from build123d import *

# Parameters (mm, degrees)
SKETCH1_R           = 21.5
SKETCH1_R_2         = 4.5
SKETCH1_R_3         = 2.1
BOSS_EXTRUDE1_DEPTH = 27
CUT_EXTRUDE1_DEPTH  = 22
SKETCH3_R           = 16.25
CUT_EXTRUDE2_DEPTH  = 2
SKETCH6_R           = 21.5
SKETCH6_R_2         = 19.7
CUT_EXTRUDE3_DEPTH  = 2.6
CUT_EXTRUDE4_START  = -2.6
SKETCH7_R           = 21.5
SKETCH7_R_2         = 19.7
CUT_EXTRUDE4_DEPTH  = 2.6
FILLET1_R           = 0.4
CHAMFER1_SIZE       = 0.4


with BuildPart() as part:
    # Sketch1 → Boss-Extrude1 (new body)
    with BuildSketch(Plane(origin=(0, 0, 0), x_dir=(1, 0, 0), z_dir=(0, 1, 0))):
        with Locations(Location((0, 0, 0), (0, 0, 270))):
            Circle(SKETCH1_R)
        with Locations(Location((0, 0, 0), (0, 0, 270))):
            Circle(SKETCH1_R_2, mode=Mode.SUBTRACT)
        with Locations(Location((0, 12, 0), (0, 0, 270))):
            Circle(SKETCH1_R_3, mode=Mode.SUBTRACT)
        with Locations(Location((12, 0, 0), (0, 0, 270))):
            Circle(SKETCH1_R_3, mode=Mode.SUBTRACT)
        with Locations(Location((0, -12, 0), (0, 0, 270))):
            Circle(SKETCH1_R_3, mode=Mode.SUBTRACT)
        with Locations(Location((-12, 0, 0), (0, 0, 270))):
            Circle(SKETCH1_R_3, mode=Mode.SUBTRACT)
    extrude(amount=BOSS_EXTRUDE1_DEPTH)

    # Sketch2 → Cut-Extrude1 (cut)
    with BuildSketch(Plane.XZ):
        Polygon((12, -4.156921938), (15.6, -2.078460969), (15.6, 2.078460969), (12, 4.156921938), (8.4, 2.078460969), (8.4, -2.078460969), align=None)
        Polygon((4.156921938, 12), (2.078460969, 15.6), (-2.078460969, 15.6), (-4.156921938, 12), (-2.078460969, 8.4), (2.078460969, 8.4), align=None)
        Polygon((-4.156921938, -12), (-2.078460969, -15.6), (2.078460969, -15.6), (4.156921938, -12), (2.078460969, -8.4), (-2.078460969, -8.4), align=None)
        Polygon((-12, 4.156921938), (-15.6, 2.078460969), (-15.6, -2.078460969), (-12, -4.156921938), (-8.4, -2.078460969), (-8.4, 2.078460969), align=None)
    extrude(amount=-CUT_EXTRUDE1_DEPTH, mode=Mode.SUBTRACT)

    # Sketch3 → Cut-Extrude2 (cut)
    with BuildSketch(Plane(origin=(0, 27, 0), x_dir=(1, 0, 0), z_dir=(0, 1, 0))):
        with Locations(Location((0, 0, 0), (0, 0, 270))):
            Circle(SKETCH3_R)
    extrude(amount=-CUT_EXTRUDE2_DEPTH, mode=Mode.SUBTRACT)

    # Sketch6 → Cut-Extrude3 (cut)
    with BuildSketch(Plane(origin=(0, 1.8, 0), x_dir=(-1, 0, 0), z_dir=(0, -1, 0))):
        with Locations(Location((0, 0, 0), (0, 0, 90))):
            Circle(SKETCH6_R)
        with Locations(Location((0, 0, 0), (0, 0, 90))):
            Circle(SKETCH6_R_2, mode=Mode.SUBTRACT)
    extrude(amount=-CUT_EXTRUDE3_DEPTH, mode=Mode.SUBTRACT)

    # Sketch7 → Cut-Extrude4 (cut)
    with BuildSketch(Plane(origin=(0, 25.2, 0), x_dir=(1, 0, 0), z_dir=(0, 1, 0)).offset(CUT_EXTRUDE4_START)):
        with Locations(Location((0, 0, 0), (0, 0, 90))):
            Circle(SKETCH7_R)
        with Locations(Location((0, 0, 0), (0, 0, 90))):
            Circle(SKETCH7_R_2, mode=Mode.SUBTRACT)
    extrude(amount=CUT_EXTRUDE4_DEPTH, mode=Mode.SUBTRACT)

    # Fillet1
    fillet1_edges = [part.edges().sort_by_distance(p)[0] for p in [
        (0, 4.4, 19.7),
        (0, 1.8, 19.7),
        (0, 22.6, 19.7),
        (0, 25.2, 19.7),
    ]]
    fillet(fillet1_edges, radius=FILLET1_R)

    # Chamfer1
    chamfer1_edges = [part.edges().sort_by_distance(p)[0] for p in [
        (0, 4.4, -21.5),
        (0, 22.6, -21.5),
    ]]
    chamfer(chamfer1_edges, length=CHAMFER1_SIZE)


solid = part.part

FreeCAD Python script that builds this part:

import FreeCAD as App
import Part
import Sketcher
Q = App.Units.Quantity


def edges_at(feature, points):
    """Names of the edges that pass closest to the given points."""
    edges = feature.Shape.Edges
    near = lambda p: min(range(len(edges)), key=lambda i: edges[i].distToShape(Part.Vertex(*p))[0])
    return sorted({f"Edge{near(p) + 1}" for p in points})


def add_polygon(sketch, points):
    """Adds a closed chain of lines whose ends are joined by coincident constraints."""
    first, n = sketch.GeometryCount, len(points)
    for a, b in zip(points, points[1:] + points[:1]):
        sketch.addGeometry(Part.LineSegment(App.Vector(*a, 0), App.Vector(*b, 0)), False)
    for i in range(n):
        sketch.addConstraint(Sketcher.Constraint("Coincident", first + i, 2, first + (i + 1) % n, 1))

doc = App.newDocument("Part")
params = doc.addObject("Spreadsheet::Sheet", "Params")
for row, (alias, value) in enumerate([
    ("sketch1_diameter", "43 mm"),
    ("sketch1_diameter2", "9 mm"),
    ("sketch1_diameter3", "4.2 mm"),
    ("pad1_length", "27 mm"),
    ("pocket1_length", "22 mm"),
    ("sketch3_diameter", "32.5 mm"),
    ("pocket2_length", "2 mm"),
    ("sketch4_diameter", "43 mm"),
    ("sketch4_diameter2", "39.4 mm"),
    ("pocket3_length", "2.6 mm"),
    ("sketch5_diameter", "43 mm"),
    ("sketch5_diameter2", "39.4 mm"),
    ("pocket4_length", "2.6 mm"),
    ("fillet_radius", "0.4 mm"),
    ("chamfer_size", "0.4 mm"),
], start=1):
    params.set(f"A{row}", alias)
    params.set(f"B{row}", "=" + value)
    params.setAlias(f"B{row}", alias)

body = doc.addObject("PartDesign::Body", "Body")

# Sketch on XZ plane
sketch1 = body.newObject("Sketcher::SketchObject", "Sketch")
sketch1.AttachmentSupport = (doc.getObject("XZ_Plane"), [""])
sketch1.MapMode = "FlatFace"
sketch1.addGeometry(Part.Circle(App.Vector(0, 0, 0), App.Vector(0, 0, 1), 21.5), False)
sketch1.addGeometry(Part.Circle(App.Vector(0, -12, 0), App.Vector(0, 0, 1), 2.1), False)
sketch1.addGeometry(Part.Circle(App.Vector(-12, 0, 0), App.Vector(0, 0, 1), 2.1), False)
sketch1.addGeometry(Part.Circle(App.Vector(12, 0, 0), App.Vector(0, 0, 1), 2.1), False)
sketch1.addGeometry(Part.Circle(App.Vector(0, 0, 0), App.Vector(0, 0, 1), 4.5), False)
sketch1.addGeometry(Part.Circle(App.Vector(0, 12, 0), App.Vector(0, 0, 1), 2.1), False)
sketch1.addConstraint(Sketcher.Constraint("Coincident", 0, 3, -1, 1))
sketch1.addConstraint(Sketcher.Constraint("Coincident", 4, 3, -1, 1))
sketch1.addConstraint(Sketcher.Constraint("Equal", 1, 2))
sketch1.addConstraint(Sketcher.Constraint("Equal", 2, 3))
sketch1.addConstraint(Sketcher.Constraint("Equal", 3, 5))
sketch1.addConstraint(Sketcher.Constraint("Symmetric", 2, 3, 3, 3, -1, 1))
sketch1.addConstraint(Sketcher.Constraint("Symmetric", 1, 3, 5, 3, -1, 1))
sketch1.addConstraint(Sketcher.Constraint("PointOnObject", 1, 3, -2))
sketch1.addConstraint(Sketcher.Constraint("PointOnObject", 2, 3, -1))
sketch1.addConstraint(Sketcher.Constraint("Diameter", 0, 43.0))
sketch1.addConstraint(Sketcher.Constraint("Diameter", 4, 9.0))
sketch1.addConstraint(Sketcher.Constraint("Diameter", 1, 4.2))
sketch1.addConstraint(Sketcher.Constraint("DistanceY", 1, 3, -1, 1, 12.0))
sketch1.addConstraint(Sketcher.Constraint("DistanceX", 2, 3, -1, 1, 12.0))
sketch1.setExpression("Constraints[9]", "Params.sketch1_diameter")
sketch1.setExpression("Constraints[10]", "Params.sketch1_diameter2")
sketch1.setExpression("Constraints[11]", "Params.sketch1_diameter3")
pad1 = body.newObject("PartDesign::Pad", "Pad")
pad1.Profile = sketch1
pad1.setExpression("Length", "Params.pad1_length")
pad1.Reversed = True

# Sketch on XZ plane
sketch2 = body.newObject("Sketcher::SketchObject", "Sketch001")
sketch2.AttachmentSupport = (doc.getObject("XZ_Plane"), [""])
sketch2.MapMode = "FlatFace"
add_polygon(sketch2, [(12, -4.2), (15.6, -2.1), (15.6, 2.1), (12, 4.2), (8.4, 2.1), (8.4, -2.1)])  # lines 0-5
add_polygon(sketch2, [(4.2, 12), (2.1, 15.6), (-2.1, 15.6), (-4.2, 12), (-2.1, 8.4), (2.1, 8.4)])  # lines 6-11
add_polygon(sketch2, [(-4.2, -12), (-2.1, -15.6), (2.1, -15.6), (4.2, -12), (2.1, -8.4), (-2.1, -8.4)])  # lines 12-17
add_polygon(sketch2, [(-12, 4.2), (-15.6, 2.1), (-15.6, -2.1), (-12, -4.2), (-8.4, -2.1), (-8.4, 2.1)])  # lines 18-23
sketch2.addConstraint(Sketcher.Constraint("Vertical", 1))
sketch2.addConstraint(Sketcher.Constraint("Vertical", 4))
sketch2.addConstraint(Sketcher.Constraint("Horizontal", 7))
sketch2.addConstraint(Sketcher.Constraint("Horizontal", 10))
sketch2.addConstraint(Sketcher.Constraint("Horizontal", 13))
sketch2.addConstraint(Sketcher.Constraint("Horizontal", 16))
sketch2.addConstraint(Sketcher.Constraint("Vertical", 19))
sketch2.addConstraint(Sketcher.Constraint("Vertical", 22))
sketch2.addConstraint(Sketcher.Constraint("Symmetric", 6, 2, 12, 2, -1, 1))
sketch2.addConstraint(Sketcher.Constraint("Symmetric", 8, 2, 14, 2, -1, 1))
sketch2.addConstraint(Sketcher.Constraint("Symmetric", 9, 2, 15, 2, -1, 1))
sketch2.addConstraint(Sketcher.Constraint("Symmetric", 11, 2, 17, 2, -1, 1))
sketch2.addConstraint(Sketcher.Constraint("Symmetric", 0, 2, 18, 2, -1, 1))
sketch2.addConstraint(Sketcher.Constraint("Symmetric", 2, 2, 20, 2, -1, 1))
sketch2.addConstraint(Sketcher.Constraint("Symmetric", 3, 2, 21, 2, -1, 1))
sketch2.addConstraint(Sketcher.Constraint("Symmetric", 5, 2, 23, 2, -1, 1))
sketch2.addConstraint(Sketcher.Constraint("Symmetric", 8, 2, 11, 2, -2))
sketch2.addConstraint(Sketcher.Constraint("Symmetric", 5, 2, 20, 2, -2))
sketch2.addConstraint(Sketcher.Constraint("Parallel", 0, 3))
sketch2.addConstraint(Sketcher.Constraint("Parallel", 2, 5))
sketch2.addConstraint(Sketcher.Constraint("Perpendicular", 3, 6))
sketch2.addConstraint(Sketcher.Constraint("Perpendicular", 5, 8))
sketch2.addConstraint(Sketcher.Constraint("Parallel", 6, 9))
sketch2.addConstraint(Sketcher.Constraint("Parallel", 8, 11))
sketch2.addConstraint(Sketcher.Constraint("Parallel", 11, 14))
sketch2.addConstraint(Sketcher.Constraint("Parallel", 14, 17))
sketch2.addConstraint(Sketcher.Constraint("Perpendicular", 17, 20))
sketch2.addConstraint(Sketcher.Constraint("Parallel", 20, 23))
sketch2.addConstraint(Sketcher.Constraint("Horizontal", 1, 2, 3, 2))
sketch2.addConstraint(Sketcher.Constraint("Horizontal", 0, 2, 4, 2))
sketch2.addConstraint(Sketcher.Constraint("Vertical", 7, 2, 9, 2))
sketch2.addConstraint(Sketcher.Constraint("Equal", 16, 1))
sketch2.addConstraint(Sketcher.Constraint("Equal", 5, 6))
sketch2.addConstraint(Sketcher.Constraint("Angle", 0, Q("30 deg")))
sketch2.addConstraint(Sketcher.Constraint("DistanceX", -1, 1, 2, 2, 12.0))
sketch2.addConstraint(Sketcher.Constraint("DistanceY", -1, 1, 8, 2, 12.0))
sketch2.addConstraint(Sketcher.Constraint("DistanceX", -1, 1, 0, 2, 15.6))
sketch2.addConstraint(Sketcher.Constraint("DistanceX", 7, 2, 7, 1, 4.156922))
pocket1 = body.newObject("PartDesign::Pocket", "Pocket")
pocket1.Profile = sketch2
pocket1.setExpression("Length", "Params.pocket1_length")

# Sketch on XZ plane
sketch3 = body.newObject("Sketcher::SketchObject", "Sketch002")
sketch3.AttachmentSupport = (doc.getObject("XZ_Plane"), [""])
sketch3.MapMode = "FlatFace"
sketch3.AttachmentOffset = App.Placement(App.Vector(0, 0, -27), App.Rotation())
sketch3.addGeometry(Part.Circle(App.Vector(0, 0, 0), App.Vector(0, 0, 1), 16), False)
sketch3.addConstraint(Sketcher.Constraint("Coincident", 0, 3, -1, 1))
sketch3.addConstraint(Sketcher.Constraint("Diameter", 0, 32.5))
sketch3.setExpression("Constraints[1]", "Params.sketch3_diameter")
pocket2 = body.newObject("PartDesign::Pocket", "Pocket001")
pocket2.Profile = sketch3
pocket2.setExpression("Length", "Params.pocket2_length")
pocket2.Reversed = True

# Sketch on XZ plane
sketch4 = body.newObject("Sketcher::SketchObject", "Sketch003")
sketch4.AttachmentSupport = (doc.getObject("XZ_Plane"), [""])
sketch4.MapMode = "FlatFace"
sketch4.AttachmentOffset = App.Placement(App.Vector(0, 0, -1.8), App.Rotation())
sketch4.addGeometry(Part.Circle(App.Vector(0, 0, 0), App.Vector(0, 0, 1), 22), False)
sketch4.addGeometry(Part.Circle(App.Vector(0, 0, 0), App.Vector(0, 0, 1), 20), False)
sketch4.addConstraint(Sketcher.Constraint("Coincident", 0, 3, -1, 1))
sketch4.addConstraint(Sketcher.Constraint("Coincident", 1, 3, -1, 1))
sketch4.addConstraint(Sketcher.Constraint("Diameter", 0, 43.0))
sketch4.addConstraint(Sketcher.Constraint("Diameter", 1, 39.4))
sketch4.setExpression("Constraints[2]", "Params.sketch4_diameter")
sketch4.setExpression("Constraints[3]", "Params.sketch4_diameter2")
pocket3 = body.newObject("PartDesign::Pocket", "Pocket002")
pocket3.Profile = sketch4
pocket3.setExpression("Length", "Params.pocket3_length")

# Sketch on XZ plane
sketch5 = body.newObject("Sketcher::SketchObject", "Sketch004")
sketch5.AttachmentSupport = (doc.getObject("XZ_Plane"), [""])
sketch5.MapMode = "FlatFace"
sketch5.AttachmentOffset = App.Placement(App.Vector(0, 0, -22.6), App.Rotation())
sketch5.addGeometry(Part.Circle(App.Vector(0, 0, 0), App.Vector(0, 0, 1), 22), False)
sketch5.addGeometry(Part.Circle(App.Vector(0, 0, 0), App.Vector(0, 0, 1), 20), False)
sketch5.addConstraint(Sketcher.Constraint("Coincident", 0, 3, -1, 1))
sketch5.addConstraint(Sketcher.Constraint("Coincident", 1, 3, -1, 1))
sketch5.addConstraint(Sketcher.Constraint("Diameter", 0, 43.0))
sketch5.addConstraint(Sketcher.Constraint("Diameter", 1, 39.4))
sketch5.setExpression("Constraints[2]", "Params.sketch5_diameter")
sketch5.setExpression("Constraints[3]", "Params.sketch5_diameter2")
pocket4 = body.newObject("PartDesign::Pocket", "Pocket003")
pocket4.Profile = sketch5
pocket4.setExpression("Length", "Params.pocket4_length")
doc.recompute()

fillet = body.newObject("PartDesign::Fillet", "Fillet")
fillet.Base = (pocket4, edges_at(pocket4, [
    (0, 4.4, 19.7),
    (0, 1.8, 19.7),
    (0, 22.6, 19.7),
    (0, 25.2, 19.7),
]))
fillet.setExpression("Radius", "Params.fillet_radius")
doc.recompute()

chamfer = body.newObject("PartDesign::Chamfer", "Chamfer")
chamfer.Base = (fillet, edges_at(fillet, [(0, 4.4, -21.5), (0, 22.6, -21.5)]))
chamfer.setExpression("Size", "Params.chamfer_size")

doc.recompute()
